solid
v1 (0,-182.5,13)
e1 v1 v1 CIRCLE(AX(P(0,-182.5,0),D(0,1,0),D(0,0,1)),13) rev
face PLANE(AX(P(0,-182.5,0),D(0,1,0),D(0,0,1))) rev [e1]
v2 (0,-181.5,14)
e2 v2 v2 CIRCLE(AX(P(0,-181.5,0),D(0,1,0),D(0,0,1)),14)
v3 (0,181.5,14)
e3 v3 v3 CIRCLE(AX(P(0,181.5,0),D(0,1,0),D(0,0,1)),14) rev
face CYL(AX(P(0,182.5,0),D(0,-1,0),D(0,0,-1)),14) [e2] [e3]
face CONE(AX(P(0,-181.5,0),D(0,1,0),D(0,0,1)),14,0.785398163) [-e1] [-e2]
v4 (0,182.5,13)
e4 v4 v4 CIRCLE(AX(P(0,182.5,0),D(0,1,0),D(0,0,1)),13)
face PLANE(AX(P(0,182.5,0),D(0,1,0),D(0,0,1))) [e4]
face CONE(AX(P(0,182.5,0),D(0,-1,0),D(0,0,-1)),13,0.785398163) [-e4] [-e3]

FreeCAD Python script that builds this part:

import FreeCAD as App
import Part
import Sketcher
Q = App.Units.Quantity


def edges_at(feature, points):
    """Names of the edges that pass closest to the given points."""
    edges = feature.Shape.Edges
    near = lambda p: min(range(len(edges)), key=lambda i: edges[i].distToShape(Part.Vertex(*p))[0])
    return sorted({f"Edge{near(p) + 1}" for p in points})

doc = App.newDocument("Part")
body = doc.addObject("PartDesign::Body", "Body")

# Sketch on XZ plane
sketch1 = body.newObject("Sketcher::SketchObject", "Sketch")
sketch1.AttachmentSupport = (doc.getObject("XZ_Plane"), [""])
sketch1.MapMode = "FlatFace"
sketch1.addGeometry(Part.Circle(App.Vector(0, 0, 0), App.Vector(0, 0, 1), 14), False)
sketch1.addConstraint(Sketcher.Constraint("Coincident", 0, 3, -1, 1))
sketch1.addConstraint(Sketcher.Constraint("Diameter", 0, Q("28 mm")))
pad1 = body.newObject("PartDesign::Pad", "Pad")
pad1.Profile = sketch1
pad1.Length = 365
pad1.Midplane = True
doc.recompute()

chamfer = body.newObject("PartDesign::Chamfer", "Chamfer")
chamfer.Base = (pad1, edges_at(pad1, [(-14, -182.5, 0), (-14, 182.5, 0)]))
chamfer.Size = 1

doc.recompute()
